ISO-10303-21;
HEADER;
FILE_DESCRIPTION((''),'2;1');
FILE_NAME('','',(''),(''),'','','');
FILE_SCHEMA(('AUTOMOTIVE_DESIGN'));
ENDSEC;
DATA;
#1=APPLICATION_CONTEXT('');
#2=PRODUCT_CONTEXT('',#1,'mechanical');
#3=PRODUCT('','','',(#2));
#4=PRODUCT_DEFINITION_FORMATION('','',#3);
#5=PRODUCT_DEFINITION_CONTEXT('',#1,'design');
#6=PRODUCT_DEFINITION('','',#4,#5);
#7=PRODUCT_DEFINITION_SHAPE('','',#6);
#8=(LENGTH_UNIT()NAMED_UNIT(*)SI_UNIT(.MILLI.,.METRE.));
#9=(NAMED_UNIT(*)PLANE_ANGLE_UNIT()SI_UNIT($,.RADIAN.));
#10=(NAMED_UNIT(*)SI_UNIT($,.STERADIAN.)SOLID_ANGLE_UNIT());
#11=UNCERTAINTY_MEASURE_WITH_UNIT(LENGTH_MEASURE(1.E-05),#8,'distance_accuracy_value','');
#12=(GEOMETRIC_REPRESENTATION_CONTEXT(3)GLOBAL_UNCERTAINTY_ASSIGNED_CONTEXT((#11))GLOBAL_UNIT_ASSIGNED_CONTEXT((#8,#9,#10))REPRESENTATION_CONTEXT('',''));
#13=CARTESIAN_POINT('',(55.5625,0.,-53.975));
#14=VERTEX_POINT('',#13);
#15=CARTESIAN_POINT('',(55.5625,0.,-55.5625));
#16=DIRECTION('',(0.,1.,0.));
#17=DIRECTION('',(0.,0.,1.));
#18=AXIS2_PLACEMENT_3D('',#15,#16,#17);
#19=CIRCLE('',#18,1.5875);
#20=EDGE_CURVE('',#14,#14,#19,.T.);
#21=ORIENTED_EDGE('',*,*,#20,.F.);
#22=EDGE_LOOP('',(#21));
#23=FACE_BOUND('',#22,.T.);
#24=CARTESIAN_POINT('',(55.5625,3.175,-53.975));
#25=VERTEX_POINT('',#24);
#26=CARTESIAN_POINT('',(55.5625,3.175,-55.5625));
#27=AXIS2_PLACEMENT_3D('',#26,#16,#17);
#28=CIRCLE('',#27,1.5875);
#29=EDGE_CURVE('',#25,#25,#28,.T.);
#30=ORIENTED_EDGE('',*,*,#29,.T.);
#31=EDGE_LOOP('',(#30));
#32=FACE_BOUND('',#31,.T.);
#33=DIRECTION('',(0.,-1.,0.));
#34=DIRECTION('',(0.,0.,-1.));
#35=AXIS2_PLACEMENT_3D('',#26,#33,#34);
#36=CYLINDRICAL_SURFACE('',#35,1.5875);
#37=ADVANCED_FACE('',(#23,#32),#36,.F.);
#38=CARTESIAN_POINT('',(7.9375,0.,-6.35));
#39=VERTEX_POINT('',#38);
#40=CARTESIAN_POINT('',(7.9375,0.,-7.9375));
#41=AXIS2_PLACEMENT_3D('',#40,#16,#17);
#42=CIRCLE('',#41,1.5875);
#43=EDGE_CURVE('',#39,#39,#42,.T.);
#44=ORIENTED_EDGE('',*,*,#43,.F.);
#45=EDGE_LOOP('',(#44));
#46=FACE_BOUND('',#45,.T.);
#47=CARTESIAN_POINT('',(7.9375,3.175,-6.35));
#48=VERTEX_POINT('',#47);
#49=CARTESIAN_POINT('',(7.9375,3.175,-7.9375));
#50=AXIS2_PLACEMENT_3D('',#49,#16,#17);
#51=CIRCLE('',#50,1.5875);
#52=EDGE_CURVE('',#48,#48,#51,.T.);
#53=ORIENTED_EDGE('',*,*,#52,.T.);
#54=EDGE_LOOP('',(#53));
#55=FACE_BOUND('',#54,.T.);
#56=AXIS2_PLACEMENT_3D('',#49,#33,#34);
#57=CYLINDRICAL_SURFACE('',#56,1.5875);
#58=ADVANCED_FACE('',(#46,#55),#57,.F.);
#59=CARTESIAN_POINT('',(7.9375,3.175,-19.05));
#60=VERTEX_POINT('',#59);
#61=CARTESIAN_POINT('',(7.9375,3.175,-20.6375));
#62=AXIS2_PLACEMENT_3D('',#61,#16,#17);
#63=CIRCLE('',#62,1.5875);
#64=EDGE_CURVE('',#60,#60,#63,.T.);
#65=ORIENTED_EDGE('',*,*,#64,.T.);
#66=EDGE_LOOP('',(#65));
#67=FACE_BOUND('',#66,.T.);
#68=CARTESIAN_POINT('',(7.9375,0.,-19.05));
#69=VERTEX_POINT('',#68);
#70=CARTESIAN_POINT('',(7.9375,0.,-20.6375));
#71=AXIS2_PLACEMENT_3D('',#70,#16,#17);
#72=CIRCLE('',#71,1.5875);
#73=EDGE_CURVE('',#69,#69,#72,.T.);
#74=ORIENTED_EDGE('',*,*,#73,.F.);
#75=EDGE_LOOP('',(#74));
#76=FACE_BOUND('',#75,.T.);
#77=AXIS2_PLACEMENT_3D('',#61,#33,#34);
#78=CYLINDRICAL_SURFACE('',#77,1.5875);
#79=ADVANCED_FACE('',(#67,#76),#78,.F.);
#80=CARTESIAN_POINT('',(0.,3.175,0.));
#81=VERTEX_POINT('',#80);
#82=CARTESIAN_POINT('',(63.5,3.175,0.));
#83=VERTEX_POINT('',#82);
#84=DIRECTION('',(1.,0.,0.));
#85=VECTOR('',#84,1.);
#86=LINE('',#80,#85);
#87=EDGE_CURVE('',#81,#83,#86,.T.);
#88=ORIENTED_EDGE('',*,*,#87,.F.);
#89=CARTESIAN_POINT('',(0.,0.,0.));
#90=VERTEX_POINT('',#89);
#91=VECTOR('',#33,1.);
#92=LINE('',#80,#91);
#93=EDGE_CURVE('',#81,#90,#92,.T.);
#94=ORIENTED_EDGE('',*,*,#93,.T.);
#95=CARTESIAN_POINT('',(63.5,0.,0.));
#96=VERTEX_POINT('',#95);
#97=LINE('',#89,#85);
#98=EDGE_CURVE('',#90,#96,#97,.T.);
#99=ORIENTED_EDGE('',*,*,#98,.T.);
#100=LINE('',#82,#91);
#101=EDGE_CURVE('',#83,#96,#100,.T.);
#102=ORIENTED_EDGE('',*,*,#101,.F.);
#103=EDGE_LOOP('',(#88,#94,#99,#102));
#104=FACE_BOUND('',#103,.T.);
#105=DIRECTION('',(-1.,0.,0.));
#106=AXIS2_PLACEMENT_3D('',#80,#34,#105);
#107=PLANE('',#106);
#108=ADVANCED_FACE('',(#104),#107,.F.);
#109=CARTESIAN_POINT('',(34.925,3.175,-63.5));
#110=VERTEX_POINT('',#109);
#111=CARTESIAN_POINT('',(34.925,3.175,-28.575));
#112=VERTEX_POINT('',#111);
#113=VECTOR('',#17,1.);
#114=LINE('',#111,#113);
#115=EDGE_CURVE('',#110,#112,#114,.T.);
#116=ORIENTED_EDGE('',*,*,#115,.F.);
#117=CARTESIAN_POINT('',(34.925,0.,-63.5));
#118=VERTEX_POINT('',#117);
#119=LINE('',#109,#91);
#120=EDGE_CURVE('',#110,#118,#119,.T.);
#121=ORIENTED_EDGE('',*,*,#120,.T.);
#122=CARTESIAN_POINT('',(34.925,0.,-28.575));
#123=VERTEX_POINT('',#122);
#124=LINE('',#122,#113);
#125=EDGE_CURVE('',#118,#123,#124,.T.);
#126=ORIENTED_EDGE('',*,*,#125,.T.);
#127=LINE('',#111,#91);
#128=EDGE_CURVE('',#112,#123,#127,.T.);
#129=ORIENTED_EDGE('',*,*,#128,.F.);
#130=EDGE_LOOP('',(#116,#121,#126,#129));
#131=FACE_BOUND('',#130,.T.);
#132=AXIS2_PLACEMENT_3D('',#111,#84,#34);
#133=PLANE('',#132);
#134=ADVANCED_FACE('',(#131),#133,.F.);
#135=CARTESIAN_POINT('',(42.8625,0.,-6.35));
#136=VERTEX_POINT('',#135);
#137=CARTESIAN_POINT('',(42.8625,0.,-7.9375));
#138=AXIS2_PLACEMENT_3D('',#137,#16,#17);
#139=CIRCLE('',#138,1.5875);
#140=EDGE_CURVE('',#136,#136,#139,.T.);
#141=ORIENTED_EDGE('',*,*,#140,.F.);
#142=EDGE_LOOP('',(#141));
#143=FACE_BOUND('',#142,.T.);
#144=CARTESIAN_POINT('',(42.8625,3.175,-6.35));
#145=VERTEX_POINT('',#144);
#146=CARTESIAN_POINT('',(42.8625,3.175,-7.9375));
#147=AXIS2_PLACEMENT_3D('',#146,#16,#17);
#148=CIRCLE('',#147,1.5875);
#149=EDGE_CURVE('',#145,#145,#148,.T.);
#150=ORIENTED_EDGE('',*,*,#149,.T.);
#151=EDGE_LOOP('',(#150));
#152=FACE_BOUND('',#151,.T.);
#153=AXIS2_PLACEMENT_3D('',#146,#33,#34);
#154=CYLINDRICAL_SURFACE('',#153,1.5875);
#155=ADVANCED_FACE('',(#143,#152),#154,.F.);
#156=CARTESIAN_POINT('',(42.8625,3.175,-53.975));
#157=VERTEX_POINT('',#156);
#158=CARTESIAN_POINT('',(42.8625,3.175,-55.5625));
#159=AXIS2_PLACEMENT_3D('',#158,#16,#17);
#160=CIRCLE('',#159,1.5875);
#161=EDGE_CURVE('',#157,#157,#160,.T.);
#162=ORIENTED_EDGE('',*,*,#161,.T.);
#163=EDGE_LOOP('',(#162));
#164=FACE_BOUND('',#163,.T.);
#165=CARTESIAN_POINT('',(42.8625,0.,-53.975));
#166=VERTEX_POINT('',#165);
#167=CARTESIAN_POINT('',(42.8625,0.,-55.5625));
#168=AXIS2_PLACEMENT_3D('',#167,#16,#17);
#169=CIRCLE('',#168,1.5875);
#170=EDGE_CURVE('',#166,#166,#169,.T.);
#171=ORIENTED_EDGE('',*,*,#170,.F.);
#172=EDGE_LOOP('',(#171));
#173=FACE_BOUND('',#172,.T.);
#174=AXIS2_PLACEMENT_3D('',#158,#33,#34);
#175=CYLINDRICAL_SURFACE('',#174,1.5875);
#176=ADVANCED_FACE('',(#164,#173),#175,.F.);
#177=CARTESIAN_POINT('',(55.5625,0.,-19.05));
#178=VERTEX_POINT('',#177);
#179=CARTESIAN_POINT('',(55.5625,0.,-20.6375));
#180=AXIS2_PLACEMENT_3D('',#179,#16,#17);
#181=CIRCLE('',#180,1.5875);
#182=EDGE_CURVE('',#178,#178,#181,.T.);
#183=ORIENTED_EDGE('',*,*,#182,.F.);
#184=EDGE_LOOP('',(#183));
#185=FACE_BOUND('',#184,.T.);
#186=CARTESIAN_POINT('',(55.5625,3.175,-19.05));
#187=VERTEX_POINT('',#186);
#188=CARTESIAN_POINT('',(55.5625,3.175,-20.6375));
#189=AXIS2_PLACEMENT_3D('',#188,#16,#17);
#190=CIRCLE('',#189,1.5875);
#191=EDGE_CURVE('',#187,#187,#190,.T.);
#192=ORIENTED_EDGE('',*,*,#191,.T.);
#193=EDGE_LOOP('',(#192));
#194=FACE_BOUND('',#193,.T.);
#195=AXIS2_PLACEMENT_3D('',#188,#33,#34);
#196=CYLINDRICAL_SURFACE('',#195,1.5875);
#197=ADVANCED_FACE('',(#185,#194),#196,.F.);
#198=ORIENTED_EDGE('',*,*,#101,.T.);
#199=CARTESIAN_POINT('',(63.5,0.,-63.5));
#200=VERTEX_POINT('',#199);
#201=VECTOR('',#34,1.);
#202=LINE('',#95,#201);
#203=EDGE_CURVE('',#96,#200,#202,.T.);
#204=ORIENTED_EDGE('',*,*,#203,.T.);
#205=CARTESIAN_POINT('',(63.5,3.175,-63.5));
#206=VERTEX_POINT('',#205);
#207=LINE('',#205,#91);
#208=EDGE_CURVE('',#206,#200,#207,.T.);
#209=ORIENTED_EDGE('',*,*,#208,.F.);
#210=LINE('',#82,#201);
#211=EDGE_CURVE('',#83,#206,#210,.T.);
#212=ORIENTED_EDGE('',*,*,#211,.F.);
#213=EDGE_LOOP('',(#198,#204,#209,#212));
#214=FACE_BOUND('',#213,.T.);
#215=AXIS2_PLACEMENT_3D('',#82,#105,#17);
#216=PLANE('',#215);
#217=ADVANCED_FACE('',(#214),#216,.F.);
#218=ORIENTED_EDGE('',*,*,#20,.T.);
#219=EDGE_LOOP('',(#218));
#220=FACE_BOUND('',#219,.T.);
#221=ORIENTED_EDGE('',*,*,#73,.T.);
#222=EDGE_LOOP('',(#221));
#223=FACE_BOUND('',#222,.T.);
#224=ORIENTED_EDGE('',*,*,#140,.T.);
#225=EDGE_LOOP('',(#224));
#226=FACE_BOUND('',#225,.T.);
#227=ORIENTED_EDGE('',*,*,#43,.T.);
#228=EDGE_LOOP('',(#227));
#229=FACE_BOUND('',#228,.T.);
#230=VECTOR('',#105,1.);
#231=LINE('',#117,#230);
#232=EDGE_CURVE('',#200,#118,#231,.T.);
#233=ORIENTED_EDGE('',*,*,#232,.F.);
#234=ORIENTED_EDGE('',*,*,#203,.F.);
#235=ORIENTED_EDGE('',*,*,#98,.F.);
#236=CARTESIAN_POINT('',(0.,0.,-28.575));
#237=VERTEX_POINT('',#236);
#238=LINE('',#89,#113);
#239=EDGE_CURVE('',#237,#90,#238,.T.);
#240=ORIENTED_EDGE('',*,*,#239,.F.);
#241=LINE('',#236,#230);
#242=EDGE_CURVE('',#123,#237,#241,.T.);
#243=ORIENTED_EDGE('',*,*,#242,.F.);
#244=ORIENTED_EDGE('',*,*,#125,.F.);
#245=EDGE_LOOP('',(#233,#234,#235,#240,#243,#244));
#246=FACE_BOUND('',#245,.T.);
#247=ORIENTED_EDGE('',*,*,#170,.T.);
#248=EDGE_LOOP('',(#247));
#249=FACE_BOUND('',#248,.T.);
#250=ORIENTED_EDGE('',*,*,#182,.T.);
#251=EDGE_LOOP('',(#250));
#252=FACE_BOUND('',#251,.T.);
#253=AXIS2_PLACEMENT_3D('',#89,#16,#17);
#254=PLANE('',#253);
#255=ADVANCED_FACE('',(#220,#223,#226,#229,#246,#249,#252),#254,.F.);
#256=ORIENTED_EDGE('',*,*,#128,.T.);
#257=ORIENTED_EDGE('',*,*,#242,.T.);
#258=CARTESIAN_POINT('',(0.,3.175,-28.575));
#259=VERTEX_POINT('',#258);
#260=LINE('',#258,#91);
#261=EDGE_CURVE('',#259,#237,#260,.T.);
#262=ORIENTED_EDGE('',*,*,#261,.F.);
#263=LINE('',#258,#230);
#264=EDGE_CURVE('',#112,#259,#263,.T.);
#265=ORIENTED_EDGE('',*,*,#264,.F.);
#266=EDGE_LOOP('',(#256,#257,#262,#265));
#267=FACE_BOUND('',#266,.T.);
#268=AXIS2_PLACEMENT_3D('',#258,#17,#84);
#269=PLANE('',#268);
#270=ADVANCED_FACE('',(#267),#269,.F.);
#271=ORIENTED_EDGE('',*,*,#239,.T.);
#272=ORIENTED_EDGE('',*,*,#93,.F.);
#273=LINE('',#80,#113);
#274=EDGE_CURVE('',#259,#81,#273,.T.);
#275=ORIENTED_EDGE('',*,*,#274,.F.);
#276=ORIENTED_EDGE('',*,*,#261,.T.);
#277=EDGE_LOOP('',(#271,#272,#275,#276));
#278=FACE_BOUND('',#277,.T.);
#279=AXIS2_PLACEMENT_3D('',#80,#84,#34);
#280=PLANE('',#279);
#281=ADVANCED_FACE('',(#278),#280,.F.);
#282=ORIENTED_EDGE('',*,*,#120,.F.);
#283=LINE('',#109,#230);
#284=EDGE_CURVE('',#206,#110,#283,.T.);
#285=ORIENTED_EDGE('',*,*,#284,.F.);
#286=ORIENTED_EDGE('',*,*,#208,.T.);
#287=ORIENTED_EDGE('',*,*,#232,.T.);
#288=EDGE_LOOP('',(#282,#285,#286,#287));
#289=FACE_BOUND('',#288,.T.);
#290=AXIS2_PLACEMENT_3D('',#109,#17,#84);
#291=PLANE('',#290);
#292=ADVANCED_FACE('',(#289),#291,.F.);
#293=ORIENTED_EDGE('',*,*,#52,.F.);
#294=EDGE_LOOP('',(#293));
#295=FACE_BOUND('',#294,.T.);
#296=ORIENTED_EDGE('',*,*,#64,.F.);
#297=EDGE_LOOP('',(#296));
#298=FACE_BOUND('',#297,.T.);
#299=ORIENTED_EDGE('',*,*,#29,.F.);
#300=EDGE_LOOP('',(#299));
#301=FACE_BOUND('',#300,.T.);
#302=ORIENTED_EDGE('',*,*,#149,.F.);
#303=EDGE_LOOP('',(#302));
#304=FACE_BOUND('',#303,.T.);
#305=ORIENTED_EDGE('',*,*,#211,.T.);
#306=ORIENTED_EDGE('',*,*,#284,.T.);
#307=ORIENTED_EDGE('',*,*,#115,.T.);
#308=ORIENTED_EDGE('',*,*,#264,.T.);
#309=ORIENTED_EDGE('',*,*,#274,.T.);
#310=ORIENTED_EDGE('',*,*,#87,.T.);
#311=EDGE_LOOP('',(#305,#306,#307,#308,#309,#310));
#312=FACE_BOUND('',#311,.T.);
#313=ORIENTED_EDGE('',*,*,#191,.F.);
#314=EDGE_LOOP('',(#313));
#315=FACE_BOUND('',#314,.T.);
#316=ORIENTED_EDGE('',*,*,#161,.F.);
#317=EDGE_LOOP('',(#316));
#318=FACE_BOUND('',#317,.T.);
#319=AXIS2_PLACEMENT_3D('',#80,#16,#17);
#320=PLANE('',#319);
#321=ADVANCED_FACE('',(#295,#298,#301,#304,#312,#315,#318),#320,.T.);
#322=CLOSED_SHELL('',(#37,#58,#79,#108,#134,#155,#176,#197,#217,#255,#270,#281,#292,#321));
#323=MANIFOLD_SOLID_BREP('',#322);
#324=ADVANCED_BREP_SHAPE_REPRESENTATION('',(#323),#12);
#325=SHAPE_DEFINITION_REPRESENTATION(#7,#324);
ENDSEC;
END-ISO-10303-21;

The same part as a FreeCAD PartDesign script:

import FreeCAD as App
import Part
import Sketcher
Q = App.Units.Quantity

doc = App.newDocument("Part")
body = doc.addObject("PartDesign::Body", "Body")

# Sketch on XZ plane
sketch1 = body.newObject("Sketcher::SketchObject", "Sketch")
sketch1.AttachmentSupport = (doc.getObject("XZ_Plane"), [""])
sketch1.MapMode = "FlatFace"
sketch1.addGeometry(Part.LineSegment(App.Vector(0, -28.575, 0), App.Vector(0, 0, 0)), False)
sketch1.addGeometry(Part.LineSegment(App.Vector(0, 0, 0), App.Vector(63.5, 0, 0)), False)
sketch1.addGeometry(Part.LineSegment(App.Vector(63.5, 0, 0), App.Vector(63.5, -63.5, 0)), False)
sketch1.addGeometry(Part.LineSegment(App.Vector(63.5, -63.5, 0), App.Vector(34.925, -63.5, 0)), False)
sketch1.addGeometry(Part.LineSegment(App.Vector(34.925, -63.5, 0), App.Vector(34.925, -28.575, 0)), False)
sketch1.addGeometry(Part.LineSegment(App.Vector(34.925, -28.575, 0), App.Vector(0, -28.575, 0)), False)
sketch1.addGeometry(Part.Circle(App.Vector(42.8625, -7.9375, 0), App.Vector(0, 0, 1), 1.5875), False)
sketch1.addGeometry(Part.Circle(App.Vector(55.5625, -20.6375, 0), App.Vector(0, 0, 1), 1.5875), False)
sketch1.addGeometry(Part.Circle(App.Vector(7.9375, -7.9375, 0), App.Vector(0, 0, 1), 1.5875), False)
sketch1.addGeometry(Part.Circle(App.Vector(7.9375, -20.6375, 0), App.Vector(0, 0, 1), 1.5875), False)
sketch1.addGeometry(Part.Circle(App.Vector(55.5625, -55.5625, 0), App.Vector(0, 0, 1), 1.5875), False)
sketch1.addGeometry(Part.Circle(App.Vector(42.8625, -55.5625, 0), App.Vector(0, 0, 1), 1.5875), False)
sketch1.addConstraint(Sketcher.Constraint("Coincident", 0, 2, 1, 1))
sketch1.addConstraint(Sketcher.Constraint("Coincident", 1, 2, 2, 1))
sketch1.addConstraint(Sketcher.Constraint("Coincident", 2, 2, 3, 1))
sketch1.addConstraint(Sketcher.Constraint("Coincident", 3, 2, 4, 1))
sketch1.addConstraint(Sketcher.Constraint("Coincident", 4, 2, 5, 1))
sketch1.addConstraint(Sketcher.Constraint("Coincident", 5, 2, 0, 1))
sketch1.addConstraint(Sketcher.Constraint("Vertical", 0))
sketch1.addConstraint(Sketcher.Constraint("Horizontal", 1))
sketch1.addConstraint(Sketcher.Constraint("Vertical", 2))
sketch1.addConstraint(Sketcher.Constraint("Horizontal", 3))
sketch1.addConstraint(Sketcher.Constraint("Vertical", 4))
sketch1.addConstraint(Sketcher.Constraint("Horizontal", 5))
sketch1.addConstraint(Sketcher.Constraint("Coincident", 0, 2, -1, 1))
sketch1.addConstraint(Sketcher.Constraint("Equal", 6, 7))
sketch1.addConstraint(Sketcher.Constraint("Equal", 7, 8))
sketch1.addConstraint(Sketcher.Constraint("Equal", 8, 9))
sketch1.addConstraint(Sketcher.Constraint("Equal", 9, 10))
sketch1.addConstraint(Sketcher.Constraint("Equal", 10, 11))
sketch1.addConstraint(Sketcher.Constraint("Horizontal", 6, 3, 8, 3))
sketch1.addConstraint(Sketcher.Constraint("Horizontal", 7, 3, 9, 3))
sketch1.addConstraint(Sketcher.Constraint("Horizontal", 10, 3, 11, 3))
sketch1.addConstraint(Sketcher.Constraint("Vertical", 8, 3, 9, 3))
sketch1.addConstraint(Sketcher.Constraint("Vertical", 7, 3, 10, 3))
sketch1.addConstraint(Sketcher.Constraint("Vertical", 6, 3, 11, 3))
sketch1.addConstraint(Sketcher.Constraint("Equal", 3, 0))
sketch1.addConstraint(Sketcher.Constraint("Equal", 1, 2))
sketch1.addConstraint(Sketcher.Constraint("Diameter", 6, Q("0.125 in")))
sketch1.addConstraint(Sketcher.Constraint("DistanceX", 1, 1, 1, 2, Q("2.5 in")))
sketch1.addConstraint(Sketcher.Constraint("DistanceX", 6, 3, 7, 3, Q("0.5 in")))
sketch1.addConstraint(Sketcher.Constraint("DistanceY", 7, 3, 6, 3, Q("0.5 in")))
sketch1.addConstraint(Sketcher.Constraint("DistanceX", 3, 2, 3, 1, Q("1.125 in")))
sketch1.addConstraint(Sketcher.Constraint("DistanceX", -1, 1, 6, 3, Q("1.6875 in")))
sketch1.addConstraint(Sketcher.Constraint("DistanceY", 6, 3, -1, 1, Q("0.3125 in")))
sketch1.addConstraint(Sketcher.Constraint("DistanceX", -1, 1, 8, 3, Q("0.3125 in")))
sketch1.addConstraint(Sketcher.Constraint("DistanceY", 10, 3, -1, 1, Q("2.1875 in")))
pad1 = body.newObject("PartDesign::Pad", "Pad")
pad1.Profile = sketch1
pad1.Length = Q("0.125 in")
pad1.Reversed = True

doc.recompute()
